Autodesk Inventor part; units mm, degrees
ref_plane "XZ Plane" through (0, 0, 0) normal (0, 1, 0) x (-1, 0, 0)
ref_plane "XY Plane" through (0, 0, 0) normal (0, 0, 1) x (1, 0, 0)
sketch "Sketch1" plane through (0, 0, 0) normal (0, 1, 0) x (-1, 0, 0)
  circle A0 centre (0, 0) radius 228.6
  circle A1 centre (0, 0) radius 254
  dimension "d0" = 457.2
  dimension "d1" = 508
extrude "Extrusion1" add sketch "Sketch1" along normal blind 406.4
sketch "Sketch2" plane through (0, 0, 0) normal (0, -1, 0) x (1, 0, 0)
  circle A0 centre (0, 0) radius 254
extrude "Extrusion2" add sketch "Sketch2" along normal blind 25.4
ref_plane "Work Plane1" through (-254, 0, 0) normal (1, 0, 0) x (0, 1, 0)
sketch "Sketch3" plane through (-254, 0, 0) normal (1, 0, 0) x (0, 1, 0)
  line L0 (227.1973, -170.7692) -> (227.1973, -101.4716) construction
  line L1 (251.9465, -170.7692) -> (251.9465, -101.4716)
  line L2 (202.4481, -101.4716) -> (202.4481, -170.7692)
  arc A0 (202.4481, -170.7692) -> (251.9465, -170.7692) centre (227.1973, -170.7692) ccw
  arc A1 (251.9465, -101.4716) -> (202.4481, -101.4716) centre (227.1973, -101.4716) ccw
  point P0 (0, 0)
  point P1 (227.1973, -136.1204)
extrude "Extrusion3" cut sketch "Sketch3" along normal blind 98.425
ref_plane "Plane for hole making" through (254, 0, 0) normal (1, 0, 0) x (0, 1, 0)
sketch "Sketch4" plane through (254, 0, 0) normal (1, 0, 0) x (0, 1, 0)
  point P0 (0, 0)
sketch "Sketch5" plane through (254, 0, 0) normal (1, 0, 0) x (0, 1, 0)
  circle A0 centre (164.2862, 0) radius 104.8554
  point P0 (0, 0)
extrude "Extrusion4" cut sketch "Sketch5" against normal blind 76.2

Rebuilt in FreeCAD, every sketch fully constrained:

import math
import FreeCAD as App
import Part
import Sketcher

V = App.Vector
Q = App.Units.Quantity

doc = App.newDocument("Part")
body = doc.addObject("PartDesign::Body", "Body")

# Sketch on XZ plane
sketch1 = doc.addObject("Sketcher::SketchObject", "Sketch")
body.addObject(sketch1)
sketch1.AttachmentSupport = (doc.XZ_Plane, [""])
sketch1.MapMode = "FlatFace"
sketch1.addGeometry(Part.Circle(V(0, 0, 0), V(0, 0, 1), 254), False)
sketch1.addGeometry(Part.Circle(V(0, 0, 0), V(0, 0, 1), 229), False)
sketch1.addConstraint(Sketcher.Constraint("Coincident", 0, 3, -1, 1))
sketch1.addConstraint(Sketcher.Constraint("Coincident", 1, 3, -1, 1))
sketch1.addConstraint(Sketcher.Constraint("Diameter", 0, Q("20 in")))
sketch1.addConstraint(Sketcher.Constraint("Diameter", 1, Q("18 in")))
pad1 = doc.addObject("PartDesign::Pad", "Pad")
body.addObject(pad1)
pad1.Profile = sketch1
pad1.Length = Q("16 in")
pad1.Reversed = True

# Sketch on XZ plane
sketch2 = doc.addObject("Sketcher::SketchObject", "Sketch001")
body.addObject(sketch2)
sketch2.AttachmentSupport = (doc.XZ_Plane, [""])
sketch2.MapMode = "FlatFace"
sketch2.addGeometry(Part.Circle(V(0, 0, 0), V(0, 0, 1), 254), False)
sketch2.addConstraint(Sketcher.Constraint("Coincident", 0, 3, -1, 1))
sketch2.addConstraint(Sketcher.Constraint("Diameter", 0, Q("20 in")))
pad2 = doc.addObject("PartDesign::Pad", "Pad001")
body.addObject(pad2)
pad2.Profile = sketch2
pad2.Length = Q("1 in")

# Sketch on YZ plane
sketch3 = doc.addObject("Sketcher::SketchObject", "Sketch002")
body.addObject(sketch3)
sketch3.AttachmentSupport = (doc.YZ_Plane, [""])
sketch3.MapMode = "FlatFace"
sketch3.AttachmentOffset = App.Placement(V(0, 0, -10 * 25.4), App.Rotation())
sketch3.addGeometry(Part.ArcOfCircle(Part.Circle(V(227, -171, 0), V(0, 0, 1), 25), math.radians(180), math.radians(360)), False)
sketch3.addGeometry(Part.LineSegment(V(252, -171, 0), V(252, -101, 0)), False)
sketch3.addGeometry(Part.ArcOfCircle(Part.Circle(V(227, -101, 0), V(0, 0, 1), 25), math.radians(0), math.radians(180)), False)
sketch3.addGeometry(Part.LineSegment(V(202, -101, 0), V(202, -171, 0)), False)
sketch3.addConstraint(Sketcher.Constraint("Tangent", 0, 2, 1, 1))
sketch3.addConstraint(Sketcher.Constraint("Tangent", 1, 2, 2, 1))
sketch3.addConstraint(Sketcher.Constraint("Tangent", 2, 2, 3, 1))
sketch3.addConstraint(Sketcher.Constraint("Tangent", 3, 2, 0, 1))
sketch3.addConstraint(Sketcher.Constraint("Vertical", 1))
sketch3.addConstraint(Sketcher.Constraint("Vertical", 3))
sketch3.addConstraint(Sketcher.Constraint("Radius", 0, 24.7492))
sketch3.addConstraint(Sketcher.Constraint("DistanceY", 1, 1, 1, 2, 69.2976))
sketch3.addConstraint(Sketcher.Constraint("DistanceY", 0, 3, -1, 1, Q("6.7232 in")))
sketch3.addConstraint(Sketcher.Constraint("DistanceX", -1, 1, 2, 2, Q("7.9704 in")))
pocket1 = doc.addObject("PartDesign::Pocket", "Pocket")
body.addObject(pocket1)
pocket1.Profile = sketch3
pocket1.Length = Q("3.875 in")
pocket1.Reversed = True

# Sketch on YZ plane
sketch4 = doc.addObject("Sketcher::SketchObject", "Sketch003")
body.addObject(sketch4)
sketch4.AttachmentSupport = (doc.YZ_Plane, [""])
sketch4.MapMode = "FlatFace"
sketch4.AttachmentOffset = App.Placement(V(0, 0, 10 * 25.4), App.Rotation())
sketch4.addGeometry(Part.Circle(V(164, 0, 0), V(0, 0, 1), 105), False)
sketch4.addConstraint(Sketcher.Constraint("PointOnObject", 0, 3, -1))
sketch4.addConstraint(Sketcher.Constraint("Diameter", 0, 209.7108))
sketch4.addConstraint(Sketcher.Constraint("DistanceX", -1, 1, 0, 3, 164.2862))
pocket2 = doc.addObject("PartDesign::Pocket", "Pocket001")
body.addObject(pocket2)
pocket2.Profile = sketch4
pocket2.Length = Q("3 in")

doc.recompute()
